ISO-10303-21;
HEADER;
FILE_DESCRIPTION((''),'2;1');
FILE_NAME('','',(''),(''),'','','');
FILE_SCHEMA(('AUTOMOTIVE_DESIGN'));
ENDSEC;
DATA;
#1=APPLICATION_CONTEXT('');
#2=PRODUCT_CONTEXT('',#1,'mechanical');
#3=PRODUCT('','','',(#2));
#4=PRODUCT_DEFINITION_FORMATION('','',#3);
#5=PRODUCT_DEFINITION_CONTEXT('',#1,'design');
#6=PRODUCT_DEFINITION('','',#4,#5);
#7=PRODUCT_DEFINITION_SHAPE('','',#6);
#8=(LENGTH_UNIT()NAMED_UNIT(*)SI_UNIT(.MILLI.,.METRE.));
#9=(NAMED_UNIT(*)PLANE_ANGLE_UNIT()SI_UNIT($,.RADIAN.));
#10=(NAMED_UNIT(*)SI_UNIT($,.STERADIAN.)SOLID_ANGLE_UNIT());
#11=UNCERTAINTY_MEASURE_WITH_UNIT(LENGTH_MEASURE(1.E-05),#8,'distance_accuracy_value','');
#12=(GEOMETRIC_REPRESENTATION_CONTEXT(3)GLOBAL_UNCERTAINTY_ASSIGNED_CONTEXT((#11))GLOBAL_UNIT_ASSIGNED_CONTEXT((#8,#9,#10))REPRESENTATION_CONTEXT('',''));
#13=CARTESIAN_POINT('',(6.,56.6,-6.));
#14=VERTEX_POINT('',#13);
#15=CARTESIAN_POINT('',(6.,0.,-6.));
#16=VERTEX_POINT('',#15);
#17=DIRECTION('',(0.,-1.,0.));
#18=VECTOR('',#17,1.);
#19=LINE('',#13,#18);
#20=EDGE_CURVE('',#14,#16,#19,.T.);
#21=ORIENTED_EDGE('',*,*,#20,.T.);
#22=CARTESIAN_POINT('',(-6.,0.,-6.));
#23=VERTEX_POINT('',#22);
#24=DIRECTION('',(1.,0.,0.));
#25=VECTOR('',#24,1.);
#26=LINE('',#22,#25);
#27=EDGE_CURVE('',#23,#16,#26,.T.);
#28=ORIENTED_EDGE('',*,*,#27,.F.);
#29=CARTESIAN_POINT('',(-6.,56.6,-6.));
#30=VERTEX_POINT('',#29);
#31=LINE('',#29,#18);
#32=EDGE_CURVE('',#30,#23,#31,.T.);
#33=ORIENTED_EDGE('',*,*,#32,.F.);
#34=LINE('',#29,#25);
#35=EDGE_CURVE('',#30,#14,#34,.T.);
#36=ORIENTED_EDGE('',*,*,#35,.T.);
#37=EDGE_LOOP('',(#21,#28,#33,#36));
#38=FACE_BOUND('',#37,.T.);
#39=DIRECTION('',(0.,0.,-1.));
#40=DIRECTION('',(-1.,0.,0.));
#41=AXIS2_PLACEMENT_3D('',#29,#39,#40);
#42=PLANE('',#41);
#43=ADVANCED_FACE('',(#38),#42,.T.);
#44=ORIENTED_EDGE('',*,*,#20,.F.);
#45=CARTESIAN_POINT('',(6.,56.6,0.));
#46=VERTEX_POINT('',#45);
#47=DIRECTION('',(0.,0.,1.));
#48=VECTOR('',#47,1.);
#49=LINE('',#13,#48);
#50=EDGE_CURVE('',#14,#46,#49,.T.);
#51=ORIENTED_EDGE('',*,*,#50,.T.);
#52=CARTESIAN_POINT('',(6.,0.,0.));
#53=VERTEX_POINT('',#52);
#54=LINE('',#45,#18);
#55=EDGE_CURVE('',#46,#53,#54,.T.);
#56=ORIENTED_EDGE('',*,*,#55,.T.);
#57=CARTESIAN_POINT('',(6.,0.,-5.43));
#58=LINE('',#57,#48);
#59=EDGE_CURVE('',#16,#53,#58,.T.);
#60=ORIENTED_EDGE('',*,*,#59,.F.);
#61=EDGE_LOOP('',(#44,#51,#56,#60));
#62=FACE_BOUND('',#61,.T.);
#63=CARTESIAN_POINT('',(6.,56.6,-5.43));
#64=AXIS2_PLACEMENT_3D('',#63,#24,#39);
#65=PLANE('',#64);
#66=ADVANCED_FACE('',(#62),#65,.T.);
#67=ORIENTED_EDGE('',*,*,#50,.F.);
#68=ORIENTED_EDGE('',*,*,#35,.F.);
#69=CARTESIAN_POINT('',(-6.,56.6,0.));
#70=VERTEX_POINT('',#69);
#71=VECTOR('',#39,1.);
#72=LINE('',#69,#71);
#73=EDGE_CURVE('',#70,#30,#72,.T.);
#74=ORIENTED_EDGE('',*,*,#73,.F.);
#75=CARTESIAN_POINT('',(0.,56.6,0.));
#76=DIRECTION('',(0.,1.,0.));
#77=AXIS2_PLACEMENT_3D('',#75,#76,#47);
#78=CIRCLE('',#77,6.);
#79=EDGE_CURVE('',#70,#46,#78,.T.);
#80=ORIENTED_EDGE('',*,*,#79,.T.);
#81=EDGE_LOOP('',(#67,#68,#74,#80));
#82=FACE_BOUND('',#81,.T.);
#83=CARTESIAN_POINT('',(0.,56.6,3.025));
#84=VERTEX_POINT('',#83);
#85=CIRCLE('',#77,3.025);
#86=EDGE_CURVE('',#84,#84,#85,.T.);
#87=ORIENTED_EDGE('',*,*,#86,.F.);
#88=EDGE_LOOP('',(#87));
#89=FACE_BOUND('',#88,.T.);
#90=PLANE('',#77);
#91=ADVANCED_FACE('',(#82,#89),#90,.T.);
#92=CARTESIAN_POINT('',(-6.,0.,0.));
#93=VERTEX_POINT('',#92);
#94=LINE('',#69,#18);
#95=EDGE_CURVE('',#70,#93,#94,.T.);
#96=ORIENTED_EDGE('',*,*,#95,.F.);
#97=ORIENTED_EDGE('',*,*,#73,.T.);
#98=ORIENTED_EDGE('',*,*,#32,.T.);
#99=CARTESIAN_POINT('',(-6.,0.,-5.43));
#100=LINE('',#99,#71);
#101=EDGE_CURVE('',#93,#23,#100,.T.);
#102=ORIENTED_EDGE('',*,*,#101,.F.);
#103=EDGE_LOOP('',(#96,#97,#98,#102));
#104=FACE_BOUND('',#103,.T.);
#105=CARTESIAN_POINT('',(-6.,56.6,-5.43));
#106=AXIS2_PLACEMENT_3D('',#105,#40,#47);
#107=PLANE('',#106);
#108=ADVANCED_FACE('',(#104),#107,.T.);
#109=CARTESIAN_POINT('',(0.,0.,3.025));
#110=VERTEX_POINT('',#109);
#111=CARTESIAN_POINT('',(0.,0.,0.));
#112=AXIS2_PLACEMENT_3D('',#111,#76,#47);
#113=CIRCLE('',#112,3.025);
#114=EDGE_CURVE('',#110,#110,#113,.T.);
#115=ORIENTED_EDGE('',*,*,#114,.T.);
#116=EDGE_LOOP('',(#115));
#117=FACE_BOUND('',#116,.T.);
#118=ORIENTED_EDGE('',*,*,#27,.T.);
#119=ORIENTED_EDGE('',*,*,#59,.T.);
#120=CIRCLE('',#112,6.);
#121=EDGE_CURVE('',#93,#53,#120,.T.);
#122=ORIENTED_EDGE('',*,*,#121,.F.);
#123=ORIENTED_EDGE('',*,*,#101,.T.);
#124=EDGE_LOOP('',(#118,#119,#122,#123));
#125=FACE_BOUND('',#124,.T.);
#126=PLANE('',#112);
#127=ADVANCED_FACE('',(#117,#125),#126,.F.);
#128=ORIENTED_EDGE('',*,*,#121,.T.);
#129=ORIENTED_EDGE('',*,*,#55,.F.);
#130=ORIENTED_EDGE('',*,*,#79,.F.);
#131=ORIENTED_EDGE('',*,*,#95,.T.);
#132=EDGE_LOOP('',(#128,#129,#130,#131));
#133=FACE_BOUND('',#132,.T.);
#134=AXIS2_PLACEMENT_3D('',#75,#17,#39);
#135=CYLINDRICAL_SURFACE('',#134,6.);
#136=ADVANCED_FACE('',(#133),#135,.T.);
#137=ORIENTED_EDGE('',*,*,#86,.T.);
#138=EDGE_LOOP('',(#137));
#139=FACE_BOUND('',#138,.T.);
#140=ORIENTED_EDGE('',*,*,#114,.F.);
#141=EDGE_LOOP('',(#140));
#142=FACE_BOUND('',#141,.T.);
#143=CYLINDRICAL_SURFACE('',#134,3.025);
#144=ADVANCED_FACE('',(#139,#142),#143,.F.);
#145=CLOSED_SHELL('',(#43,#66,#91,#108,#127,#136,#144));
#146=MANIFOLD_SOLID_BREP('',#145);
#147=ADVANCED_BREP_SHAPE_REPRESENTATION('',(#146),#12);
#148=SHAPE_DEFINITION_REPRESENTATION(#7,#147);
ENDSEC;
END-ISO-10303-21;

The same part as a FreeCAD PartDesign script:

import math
import FreeCAD as App
import Part
import Sketcher

V = App.Vector

doc = App.newDocument("Part")
body = doc.addObject("PartDesign::Body", "Body")

sketch1 = body.newObject("Sketcher::SketchObject", "Sketch")
sketch1.AttachmentSupport = (doc.getObject("XZ_Plane"), [""])
sketch1.MapMode = "FlatFace"
sketch1.addGeometry([
    Part.LineSegment(V(-6, -6, 0), V(-6, 0, 0)),
    Part.ArcOfCircle(Part.Circle(V(0, 0, 0), V(0, 0, 1), 6), math.radians(0), math.radians(180)),
    Part.LineSegment(V(6, 0, 0), V(6, -6, 0)),
    Part.LineSegment(V(6, -6, 0), V(-6, -6, 0)),
    Part.Circle(V(0, 0, 0), V(0, 0, 1), 3.025),
], False)
sketch1.addConstraint([
    Sketcher.Constraint("Tangent", 0, 2, 1, 2),
    Sketcher.Constraint("Tangent", 1, 1, 2, 1),
    Sketcher.Constraint("Coincident", 2, 2, 3, 1),
    Sketcher.Constraint("Coincident", 3, 2, 0, 1),
    Sketcher.Constraint("Vertical", 0),
    Sketcher.Constraint("Vertical", 2),
    Sketcher.Constraint("Horizontal", 3),
    Sketcher.Constraint("Coincident", 1, 3, -1, 1),
    Sketcher.Constraint("Coincident", 4, 3, -1, 1),
    Sketcher.Constraint("Radius", 1, 6.0),
    Sketcher.Constraint("Diameter", 4, 6.05),
    Sketcher.Constraint("DistanceY", 0, 1, 0, 2, 6.0),
])
pad1 = body.newObject("PartDesign::Pad", "Pad")
pad1.Profile = sketch1
pad1.Length = 56.6
pad1.Reversed = True

doc.recompute()
